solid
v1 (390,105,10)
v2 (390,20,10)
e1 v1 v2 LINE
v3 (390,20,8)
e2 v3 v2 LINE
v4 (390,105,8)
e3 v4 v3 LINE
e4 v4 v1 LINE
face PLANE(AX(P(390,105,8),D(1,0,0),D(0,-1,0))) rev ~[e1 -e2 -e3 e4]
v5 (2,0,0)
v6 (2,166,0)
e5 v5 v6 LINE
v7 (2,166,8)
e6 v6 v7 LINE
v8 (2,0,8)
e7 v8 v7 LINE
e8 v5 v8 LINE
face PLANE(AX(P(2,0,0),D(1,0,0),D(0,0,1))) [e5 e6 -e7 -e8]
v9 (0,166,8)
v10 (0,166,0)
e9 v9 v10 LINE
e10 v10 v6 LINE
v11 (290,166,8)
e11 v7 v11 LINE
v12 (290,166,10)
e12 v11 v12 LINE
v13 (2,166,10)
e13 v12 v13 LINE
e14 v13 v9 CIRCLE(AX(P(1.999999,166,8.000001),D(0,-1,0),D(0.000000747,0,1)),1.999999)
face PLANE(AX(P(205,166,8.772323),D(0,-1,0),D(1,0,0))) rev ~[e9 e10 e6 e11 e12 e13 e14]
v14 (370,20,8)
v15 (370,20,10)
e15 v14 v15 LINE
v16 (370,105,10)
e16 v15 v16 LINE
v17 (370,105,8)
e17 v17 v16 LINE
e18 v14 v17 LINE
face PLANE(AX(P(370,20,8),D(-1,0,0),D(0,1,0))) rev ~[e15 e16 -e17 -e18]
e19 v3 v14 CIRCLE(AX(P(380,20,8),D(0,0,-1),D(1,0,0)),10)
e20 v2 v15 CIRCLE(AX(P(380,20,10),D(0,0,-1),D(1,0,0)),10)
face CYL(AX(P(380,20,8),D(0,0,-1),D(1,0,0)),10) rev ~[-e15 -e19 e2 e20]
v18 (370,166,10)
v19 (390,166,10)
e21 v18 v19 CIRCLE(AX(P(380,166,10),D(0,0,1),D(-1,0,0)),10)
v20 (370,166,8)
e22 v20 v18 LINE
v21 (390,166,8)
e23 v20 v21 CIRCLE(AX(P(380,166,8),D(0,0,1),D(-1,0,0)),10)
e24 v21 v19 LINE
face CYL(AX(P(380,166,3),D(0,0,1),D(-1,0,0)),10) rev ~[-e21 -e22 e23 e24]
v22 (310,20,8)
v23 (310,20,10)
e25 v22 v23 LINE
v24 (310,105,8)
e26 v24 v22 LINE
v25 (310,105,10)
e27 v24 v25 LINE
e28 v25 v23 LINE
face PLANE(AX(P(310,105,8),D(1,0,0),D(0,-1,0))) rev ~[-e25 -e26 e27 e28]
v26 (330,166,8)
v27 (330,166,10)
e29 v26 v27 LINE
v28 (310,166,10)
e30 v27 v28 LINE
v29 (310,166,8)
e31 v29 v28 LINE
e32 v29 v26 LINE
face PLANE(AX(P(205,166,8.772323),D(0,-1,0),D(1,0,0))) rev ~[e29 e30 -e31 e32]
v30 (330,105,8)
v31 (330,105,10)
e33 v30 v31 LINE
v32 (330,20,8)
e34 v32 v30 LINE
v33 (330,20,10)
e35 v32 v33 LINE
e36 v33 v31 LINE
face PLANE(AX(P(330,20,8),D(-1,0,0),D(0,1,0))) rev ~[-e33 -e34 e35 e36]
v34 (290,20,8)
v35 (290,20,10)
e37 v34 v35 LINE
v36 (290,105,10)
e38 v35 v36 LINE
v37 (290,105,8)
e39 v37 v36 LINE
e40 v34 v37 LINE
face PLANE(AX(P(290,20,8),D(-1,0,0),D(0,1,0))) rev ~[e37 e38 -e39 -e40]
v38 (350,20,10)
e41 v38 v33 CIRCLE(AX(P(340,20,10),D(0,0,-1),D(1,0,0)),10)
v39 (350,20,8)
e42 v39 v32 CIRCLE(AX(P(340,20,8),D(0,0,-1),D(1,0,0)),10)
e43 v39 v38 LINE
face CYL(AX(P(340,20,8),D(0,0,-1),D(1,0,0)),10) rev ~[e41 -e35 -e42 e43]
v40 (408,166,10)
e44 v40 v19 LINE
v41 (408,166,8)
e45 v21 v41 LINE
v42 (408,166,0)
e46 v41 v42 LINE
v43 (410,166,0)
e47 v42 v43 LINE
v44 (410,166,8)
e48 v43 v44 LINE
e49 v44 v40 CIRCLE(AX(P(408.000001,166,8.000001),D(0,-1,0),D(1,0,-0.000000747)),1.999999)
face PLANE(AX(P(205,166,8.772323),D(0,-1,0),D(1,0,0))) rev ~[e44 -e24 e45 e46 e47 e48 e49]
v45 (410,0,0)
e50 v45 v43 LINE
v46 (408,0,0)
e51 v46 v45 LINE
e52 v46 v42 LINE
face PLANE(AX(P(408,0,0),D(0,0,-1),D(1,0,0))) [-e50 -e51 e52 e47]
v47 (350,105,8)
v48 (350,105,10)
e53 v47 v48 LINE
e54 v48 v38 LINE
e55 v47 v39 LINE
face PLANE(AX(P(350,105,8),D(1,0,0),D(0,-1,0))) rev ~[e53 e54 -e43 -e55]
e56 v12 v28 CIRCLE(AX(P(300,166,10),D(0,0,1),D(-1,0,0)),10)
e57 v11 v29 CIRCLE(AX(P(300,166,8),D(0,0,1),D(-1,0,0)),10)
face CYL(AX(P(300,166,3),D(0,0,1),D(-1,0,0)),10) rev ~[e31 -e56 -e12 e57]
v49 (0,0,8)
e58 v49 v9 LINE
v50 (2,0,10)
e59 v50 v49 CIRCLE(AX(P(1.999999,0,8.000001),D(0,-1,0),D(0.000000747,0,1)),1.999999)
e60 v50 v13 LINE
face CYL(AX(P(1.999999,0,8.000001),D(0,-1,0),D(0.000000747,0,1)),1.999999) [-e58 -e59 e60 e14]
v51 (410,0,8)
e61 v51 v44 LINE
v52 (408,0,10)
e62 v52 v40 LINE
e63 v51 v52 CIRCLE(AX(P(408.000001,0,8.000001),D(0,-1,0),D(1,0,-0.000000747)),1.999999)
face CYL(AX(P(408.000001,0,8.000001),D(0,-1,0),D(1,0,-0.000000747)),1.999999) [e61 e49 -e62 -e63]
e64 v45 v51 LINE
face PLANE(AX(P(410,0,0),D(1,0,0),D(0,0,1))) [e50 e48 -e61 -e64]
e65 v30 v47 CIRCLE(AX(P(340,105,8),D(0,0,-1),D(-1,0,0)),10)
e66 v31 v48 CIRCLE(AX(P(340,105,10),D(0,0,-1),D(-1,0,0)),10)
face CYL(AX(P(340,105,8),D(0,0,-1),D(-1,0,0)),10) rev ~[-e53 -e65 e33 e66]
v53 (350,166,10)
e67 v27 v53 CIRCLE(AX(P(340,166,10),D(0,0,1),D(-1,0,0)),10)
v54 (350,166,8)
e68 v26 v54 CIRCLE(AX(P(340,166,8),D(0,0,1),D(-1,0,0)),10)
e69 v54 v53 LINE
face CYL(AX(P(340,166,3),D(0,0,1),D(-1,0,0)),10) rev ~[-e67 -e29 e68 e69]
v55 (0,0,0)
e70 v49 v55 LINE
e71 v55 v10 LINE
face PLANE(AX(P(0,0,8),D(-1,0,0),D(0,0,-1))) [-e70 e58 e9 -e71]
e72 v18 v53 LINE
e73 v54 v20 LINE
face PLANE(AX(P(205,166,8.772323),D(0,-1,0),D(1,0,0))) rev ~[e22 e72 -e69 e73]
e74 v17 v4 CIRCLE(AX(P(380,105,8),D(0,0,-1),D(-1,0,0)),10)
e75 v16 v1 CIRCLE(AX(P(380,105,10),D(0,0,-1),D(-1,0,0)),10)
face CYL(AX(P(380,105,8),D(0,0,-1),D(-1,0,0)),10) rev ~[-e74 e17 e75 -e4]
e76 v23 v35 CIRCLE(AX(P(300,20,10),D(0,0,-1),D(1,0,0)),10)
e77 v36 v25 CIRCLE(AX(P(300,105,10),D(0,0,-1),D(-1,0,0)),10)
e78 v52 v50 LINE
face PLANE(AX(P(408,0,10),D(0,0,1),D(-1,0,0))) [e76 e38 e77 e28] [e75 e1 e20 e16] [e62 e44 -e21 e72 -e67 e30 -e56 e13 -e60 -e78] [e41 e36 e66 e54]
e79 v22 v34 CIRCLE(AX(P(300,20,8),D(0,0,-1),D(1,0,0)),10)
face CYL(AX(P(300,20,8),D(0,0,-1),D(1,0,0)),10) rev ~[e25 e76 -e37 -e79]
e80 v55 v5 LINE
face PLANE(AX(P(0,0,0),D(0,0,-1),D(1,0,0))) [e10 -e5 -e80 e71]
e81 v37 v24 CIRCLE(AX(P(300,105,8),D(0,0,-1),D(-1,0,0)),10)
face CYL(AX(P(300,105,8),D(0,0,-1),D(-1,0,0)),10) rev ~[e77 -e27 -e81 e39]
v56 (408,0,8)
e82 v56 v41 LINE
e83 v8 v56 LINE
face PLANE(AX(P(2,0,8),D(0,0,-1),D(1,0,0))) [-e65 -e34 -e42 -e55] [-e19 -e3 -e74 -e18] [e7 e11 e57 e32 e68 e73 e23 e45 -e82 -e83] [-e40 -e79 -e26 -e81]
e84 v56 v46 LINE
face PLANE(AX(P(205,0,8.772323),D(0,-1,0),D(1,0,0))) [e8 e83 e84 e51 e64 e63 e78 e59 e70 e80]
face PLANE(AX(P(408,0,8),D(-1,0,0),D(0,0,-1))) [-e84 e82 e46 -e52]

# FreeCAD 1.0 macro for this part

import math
import FreeCAD as App
import Part
import Sketcher
from FreeCAD import Vector

doc = App.newDocument("Part")
body = doc.addObject("PartDesign::Body", "Body")

sketch1 = body.newObject("Sketcher::SketchObject", "Sketch")
sketch1.AttachmentSupport = (doc.getObject("XZ_Plane"), [""])
sketch1.MapMode = "FlatFace"
sketch1.addGeometry([
    Part.LineSegment(Vector(0, 8, 0), Vector(0, 0, 0)),
    Part.LineSegment(Vector(0, 0, 0), Vector(2, 0, 0)),
    Part.LineSegment(Vector(2, 0, 0), Vector(2, 8, 0)),
    Part.LineSegment(Vector(2, 8, 0), Vector(408, 8, 0)),
    Part.LineSegment(Vector(408, 8, 0), Vector(408, 0, 0)),
    Part.LineSegment(Vector(408, 0, 0), Vector(410, 0, 0)),
    Part.LineSegment(Vector(410, 0, 0), Vector(410, 8, 0)),
    Part.ArcOfCircle(Part.Circle(Vector(408, 8, 0), Vector(0, 0, 1), 2), math.radians(0), math.radians(90)),
    Part.LineSegment(Vector(408, 10, 0), Vector(2, 10, 0)),
    Part.ArcOfCircle(Part.Circle(Vector(2, 8, 0), Vector(0, 0, 1), 2), math.radians(90), math.radians(180)),
], False)
sketch1.addConstraint([
    Sketcher.Constraint("Coincident", 0, 2, 1, 1),
    Sketcher.Constraint("Coincident", 1, 2, 2, 1),
    Sketcher.Constraint("Coincident", 2, 2, 3, 1),
    Sketcher.Constraint("Coincident", 3, 2, 4, 1),
    Sketcher.Constraint("Coincident", 4, 2, 5, 1),
    Sketcher.Constraint("Coincident", 5, 2, 6, 1),
    Sketcher.Constraint("Tangent", 6, 2, 7, 1),
    Sketcher.Constraint("Tangent", 7, 2, 8, 1),
    Sketcher.Constraint("Tangent", 8, 2, 9, 1),
    Sketcher.Constraint("Tangent", 9, 2, 0, 1),
    Sketcher.Constraint("Vertical", 0),
    Sketcher.Constraint("Horizontal", 1),
    Sketcher.Constraint("Vertical", 2),
    Sketcher.Constraint("Horizontal", 3),
    Sketcher.Constraint("Vertical", 4),
    Sketcher.Constraint("Horizontal", 5),
    Sketcher.Constraint("Vertical", 6),
    Sketcher.Constraint("Horizontal", 8),
    Sketcher.Constraint("Coincident", 0, 2, -1, 1),
    Sketcher.Constraint("Coincident", 2, 2, 9, 3),
    Sketcher.Constraint("Coincident", 3, 2, 7, 3),
    Sketcher.Constraint("PointOnObject", 4, 2, -1),
    Sketcher.Constraint("Radius", 7, 1.999999),
    Sketcher.Constraint("DistanceX", 3, 1, 3, 2, 406.0),
    Sketcher.Constraint("DistanceY", 0, 2, 0, 1, 8.0),
])
pad1 = body.newObject("PartDesign::Pad", "Pad")
pad1.Profile = sketch1
pad1.Length = 166
pad1.Reversed = True

sketch2 = body.newObject("Sketcher::SketchObject", "Sketch001")
sketch2.AttachmentSupport = (doc.getObject("XY_Plane"), [""])
sketch2.MapMode = "FlatFace"
sketch2.AttachmentOffset = App.Placement(Vector(0, 0, 8), App.Rotation())
sketch2.addGeometry([
    Part.ArcOfCircle(Part.Circle(Vector(300, 20, 0), Vector(0, 0, 1), 10), math.radians(180), math.radians(360)),
    Part.LineSegment(Vector(290, 20, 0), Vector(290, 105, 0)),
    Part.ArcOfCircle(Part.Circle(Vector(300, 105, 0), Vector(0, 0, 1), 10), math.radians(0), math.radians(180)),
    Part.LineSegment(Vector(310, 105, 0), Vector(310, 20, 0)),
    Part.ArcOfCircle(Part.Circle(Vector(340, 20, 0), Vector(0, 0, 1), 10), math.radians(180), math.radians(360)),
    Part.LineSegment(Vector(330, 20, 0), Vector(330, 105, 0)),
    Part.ArcOfCircle(Part.Circle(Vector(340, 105, 0), Vector(0, 0, 1), 10), math.radians(0), math.radians(180)),
    Part.LineSegment(Vector(350, 105, 0), Vector(350, 20, 0)),
    Part.ArcOfCircle(Part.Circle(Vector(380, 20, 0), Vector(0, 0, 1), 10), math.radians(180), math.radians(360)),
    Part.LineSegment(Vector(370, 20, 0), Vector(370, 105, 0)),
    Part.ArcOfCircle(Part.Circle(Vector(380, 105, 0), Vector(0, 0, 1), 10), math.radians(0), math.radians(180)),
    Part.LineSegment(Vector(390, 105, 0), Vector(390, 20, 0)),
], False)
sketch2.addConstraint([
    Sketcher.Constraint("Tangent", 0, 1, 1, 1),
    Sketcher.Constraint("Tangent", 1, 2, 2, 2),
    Sketcher.Constraint("Tangent", 2, 1, 3, 1),
    Sketcher.Constraint("Tangent", 3, 2, 0, 2),
    Sketcher.Constraint("Tangent", 4, 1, 5, 1),
    Sketcher.Constraint("Tangent", 5, 2, 6, 2),
    Sketcher.Constraint("Tangent", 6, 1, 7, 1),
    Sketcher.Constraint("Tangent", 7, 2, 4, 2),
    Sketcher.Constraint("Tangent", 8, 1, 9, 1),
    Sketcher.Constraint("Tangent", 9, 2, 10, 2),
    Sketcher.Constraint("Tangent", 10, 1, 11, 1),
    Sketcher.Constraint("Tangent", 11, 2, 8, 2),
    Sketcher.Constraint("Vertical", 1),
    Sketcher.Constraint("Vertical", 3),
    Sketcher.Constraint("Vertical", 5),
    Sketcher.Constraint("Vertical", 7),
    Sketcher.Constraint("Vertical", 9),
    Sketcher.Constraint("Vertical", 11),
    Sketcher.Constraint("Equal", 2, 4),
    Sketcher.Constraint("Equal", 6, 8),
    Sketcher.Constraint("Horizontal", 0, 3, 4, 3),
    Sketcher.Constraint("Horizontal", 2, 3, 6, 3),
    Sketcher.Constraint("Horizontal", 4, 3, 8, 3),
    Sketcher.Constraint("Horizontal", 6, 3, 10, 3),
    Sketcher.Constraint("Radius", 0, 10.0),
    Sketcher.Constraint("DistanceY", 1, 1, 1, 2, 85.0),
    Sketcher.Constraint("DistanceX", -1, 1, 0, 3, 300.0),
    Sketcher.Constraint("DistanceY", -1, 1, 0, 3, 20.0),
    Sketcher.Constraint("DistanceX", -1, 1, 4, 3, 340.0),
    Sketcher.Constraint("DistanceX", -1, 1, 8, 3, 380.0),
])
pocket1 = body.newObject("PartDesign::Pocket", "Pocket")
pocket1.Profile = sketch2
pocket1.Type = "ThroughAll"
pocket1.Reversed = True

sketch3 = body.newObject("Sketcher::SketchObject", "Sketch002")
sketch3.AttachmentSupport = (doc.getObject("XY_Plane"), [""])
sketch3.MapMode = "FlatFace"
sketch3.AttachmentOffset = App.Placement(Vector(0, 0, 8), App.Rotation())
sketch3.addGeometry([
    Part.Circle(Vector(300, 166, 0), Vector(0, 0, 1), 10),
    Part.Circle(Vector(340, 166, 0), Vector(0, 0, 1), 10),
    Part.Circle(Vector(380, 166, 0), Vector(0, 0, 1), 10),
], False)
sketch3.addConstraint([
    Sketcher.Constraint("Equal", 0, 1),
    Sketcher.Constraint("Equal", 1, 2),
    Sketcher.Constraint("Horizontal", 0, 3, 1, 3),
    Sketcher.Constraint("Horizontal", 1, 3, 2, 3),
    Sketcher.Constraint("Diameter", 0, 20.0),
    Sketcher.Constraint("DistanceX", -1, 1, 0, 3, 300.0),
    Sketcher.Constraint("DistanceY", -1, 1, 0, 3, 166.0),
    Sketcher.Constraint("DistanceX", -1, 1, 1, 3, 340.0),
    Sketcher.Constraint("DistanceX", -1, 1, 2, 3, 380.0),
])
doc.recompute()
hole = body.newObject("PartDesign::Hole", "Hole")
hole.Profile = sketch3
hole.ThreadType = "None"
hole.Diameter = 20
hole.DepthType = "Dimension"
hole.Depth = 5
hole.DrillPoint = "Flat"
hole.Reversed = True

doc.recompute()
